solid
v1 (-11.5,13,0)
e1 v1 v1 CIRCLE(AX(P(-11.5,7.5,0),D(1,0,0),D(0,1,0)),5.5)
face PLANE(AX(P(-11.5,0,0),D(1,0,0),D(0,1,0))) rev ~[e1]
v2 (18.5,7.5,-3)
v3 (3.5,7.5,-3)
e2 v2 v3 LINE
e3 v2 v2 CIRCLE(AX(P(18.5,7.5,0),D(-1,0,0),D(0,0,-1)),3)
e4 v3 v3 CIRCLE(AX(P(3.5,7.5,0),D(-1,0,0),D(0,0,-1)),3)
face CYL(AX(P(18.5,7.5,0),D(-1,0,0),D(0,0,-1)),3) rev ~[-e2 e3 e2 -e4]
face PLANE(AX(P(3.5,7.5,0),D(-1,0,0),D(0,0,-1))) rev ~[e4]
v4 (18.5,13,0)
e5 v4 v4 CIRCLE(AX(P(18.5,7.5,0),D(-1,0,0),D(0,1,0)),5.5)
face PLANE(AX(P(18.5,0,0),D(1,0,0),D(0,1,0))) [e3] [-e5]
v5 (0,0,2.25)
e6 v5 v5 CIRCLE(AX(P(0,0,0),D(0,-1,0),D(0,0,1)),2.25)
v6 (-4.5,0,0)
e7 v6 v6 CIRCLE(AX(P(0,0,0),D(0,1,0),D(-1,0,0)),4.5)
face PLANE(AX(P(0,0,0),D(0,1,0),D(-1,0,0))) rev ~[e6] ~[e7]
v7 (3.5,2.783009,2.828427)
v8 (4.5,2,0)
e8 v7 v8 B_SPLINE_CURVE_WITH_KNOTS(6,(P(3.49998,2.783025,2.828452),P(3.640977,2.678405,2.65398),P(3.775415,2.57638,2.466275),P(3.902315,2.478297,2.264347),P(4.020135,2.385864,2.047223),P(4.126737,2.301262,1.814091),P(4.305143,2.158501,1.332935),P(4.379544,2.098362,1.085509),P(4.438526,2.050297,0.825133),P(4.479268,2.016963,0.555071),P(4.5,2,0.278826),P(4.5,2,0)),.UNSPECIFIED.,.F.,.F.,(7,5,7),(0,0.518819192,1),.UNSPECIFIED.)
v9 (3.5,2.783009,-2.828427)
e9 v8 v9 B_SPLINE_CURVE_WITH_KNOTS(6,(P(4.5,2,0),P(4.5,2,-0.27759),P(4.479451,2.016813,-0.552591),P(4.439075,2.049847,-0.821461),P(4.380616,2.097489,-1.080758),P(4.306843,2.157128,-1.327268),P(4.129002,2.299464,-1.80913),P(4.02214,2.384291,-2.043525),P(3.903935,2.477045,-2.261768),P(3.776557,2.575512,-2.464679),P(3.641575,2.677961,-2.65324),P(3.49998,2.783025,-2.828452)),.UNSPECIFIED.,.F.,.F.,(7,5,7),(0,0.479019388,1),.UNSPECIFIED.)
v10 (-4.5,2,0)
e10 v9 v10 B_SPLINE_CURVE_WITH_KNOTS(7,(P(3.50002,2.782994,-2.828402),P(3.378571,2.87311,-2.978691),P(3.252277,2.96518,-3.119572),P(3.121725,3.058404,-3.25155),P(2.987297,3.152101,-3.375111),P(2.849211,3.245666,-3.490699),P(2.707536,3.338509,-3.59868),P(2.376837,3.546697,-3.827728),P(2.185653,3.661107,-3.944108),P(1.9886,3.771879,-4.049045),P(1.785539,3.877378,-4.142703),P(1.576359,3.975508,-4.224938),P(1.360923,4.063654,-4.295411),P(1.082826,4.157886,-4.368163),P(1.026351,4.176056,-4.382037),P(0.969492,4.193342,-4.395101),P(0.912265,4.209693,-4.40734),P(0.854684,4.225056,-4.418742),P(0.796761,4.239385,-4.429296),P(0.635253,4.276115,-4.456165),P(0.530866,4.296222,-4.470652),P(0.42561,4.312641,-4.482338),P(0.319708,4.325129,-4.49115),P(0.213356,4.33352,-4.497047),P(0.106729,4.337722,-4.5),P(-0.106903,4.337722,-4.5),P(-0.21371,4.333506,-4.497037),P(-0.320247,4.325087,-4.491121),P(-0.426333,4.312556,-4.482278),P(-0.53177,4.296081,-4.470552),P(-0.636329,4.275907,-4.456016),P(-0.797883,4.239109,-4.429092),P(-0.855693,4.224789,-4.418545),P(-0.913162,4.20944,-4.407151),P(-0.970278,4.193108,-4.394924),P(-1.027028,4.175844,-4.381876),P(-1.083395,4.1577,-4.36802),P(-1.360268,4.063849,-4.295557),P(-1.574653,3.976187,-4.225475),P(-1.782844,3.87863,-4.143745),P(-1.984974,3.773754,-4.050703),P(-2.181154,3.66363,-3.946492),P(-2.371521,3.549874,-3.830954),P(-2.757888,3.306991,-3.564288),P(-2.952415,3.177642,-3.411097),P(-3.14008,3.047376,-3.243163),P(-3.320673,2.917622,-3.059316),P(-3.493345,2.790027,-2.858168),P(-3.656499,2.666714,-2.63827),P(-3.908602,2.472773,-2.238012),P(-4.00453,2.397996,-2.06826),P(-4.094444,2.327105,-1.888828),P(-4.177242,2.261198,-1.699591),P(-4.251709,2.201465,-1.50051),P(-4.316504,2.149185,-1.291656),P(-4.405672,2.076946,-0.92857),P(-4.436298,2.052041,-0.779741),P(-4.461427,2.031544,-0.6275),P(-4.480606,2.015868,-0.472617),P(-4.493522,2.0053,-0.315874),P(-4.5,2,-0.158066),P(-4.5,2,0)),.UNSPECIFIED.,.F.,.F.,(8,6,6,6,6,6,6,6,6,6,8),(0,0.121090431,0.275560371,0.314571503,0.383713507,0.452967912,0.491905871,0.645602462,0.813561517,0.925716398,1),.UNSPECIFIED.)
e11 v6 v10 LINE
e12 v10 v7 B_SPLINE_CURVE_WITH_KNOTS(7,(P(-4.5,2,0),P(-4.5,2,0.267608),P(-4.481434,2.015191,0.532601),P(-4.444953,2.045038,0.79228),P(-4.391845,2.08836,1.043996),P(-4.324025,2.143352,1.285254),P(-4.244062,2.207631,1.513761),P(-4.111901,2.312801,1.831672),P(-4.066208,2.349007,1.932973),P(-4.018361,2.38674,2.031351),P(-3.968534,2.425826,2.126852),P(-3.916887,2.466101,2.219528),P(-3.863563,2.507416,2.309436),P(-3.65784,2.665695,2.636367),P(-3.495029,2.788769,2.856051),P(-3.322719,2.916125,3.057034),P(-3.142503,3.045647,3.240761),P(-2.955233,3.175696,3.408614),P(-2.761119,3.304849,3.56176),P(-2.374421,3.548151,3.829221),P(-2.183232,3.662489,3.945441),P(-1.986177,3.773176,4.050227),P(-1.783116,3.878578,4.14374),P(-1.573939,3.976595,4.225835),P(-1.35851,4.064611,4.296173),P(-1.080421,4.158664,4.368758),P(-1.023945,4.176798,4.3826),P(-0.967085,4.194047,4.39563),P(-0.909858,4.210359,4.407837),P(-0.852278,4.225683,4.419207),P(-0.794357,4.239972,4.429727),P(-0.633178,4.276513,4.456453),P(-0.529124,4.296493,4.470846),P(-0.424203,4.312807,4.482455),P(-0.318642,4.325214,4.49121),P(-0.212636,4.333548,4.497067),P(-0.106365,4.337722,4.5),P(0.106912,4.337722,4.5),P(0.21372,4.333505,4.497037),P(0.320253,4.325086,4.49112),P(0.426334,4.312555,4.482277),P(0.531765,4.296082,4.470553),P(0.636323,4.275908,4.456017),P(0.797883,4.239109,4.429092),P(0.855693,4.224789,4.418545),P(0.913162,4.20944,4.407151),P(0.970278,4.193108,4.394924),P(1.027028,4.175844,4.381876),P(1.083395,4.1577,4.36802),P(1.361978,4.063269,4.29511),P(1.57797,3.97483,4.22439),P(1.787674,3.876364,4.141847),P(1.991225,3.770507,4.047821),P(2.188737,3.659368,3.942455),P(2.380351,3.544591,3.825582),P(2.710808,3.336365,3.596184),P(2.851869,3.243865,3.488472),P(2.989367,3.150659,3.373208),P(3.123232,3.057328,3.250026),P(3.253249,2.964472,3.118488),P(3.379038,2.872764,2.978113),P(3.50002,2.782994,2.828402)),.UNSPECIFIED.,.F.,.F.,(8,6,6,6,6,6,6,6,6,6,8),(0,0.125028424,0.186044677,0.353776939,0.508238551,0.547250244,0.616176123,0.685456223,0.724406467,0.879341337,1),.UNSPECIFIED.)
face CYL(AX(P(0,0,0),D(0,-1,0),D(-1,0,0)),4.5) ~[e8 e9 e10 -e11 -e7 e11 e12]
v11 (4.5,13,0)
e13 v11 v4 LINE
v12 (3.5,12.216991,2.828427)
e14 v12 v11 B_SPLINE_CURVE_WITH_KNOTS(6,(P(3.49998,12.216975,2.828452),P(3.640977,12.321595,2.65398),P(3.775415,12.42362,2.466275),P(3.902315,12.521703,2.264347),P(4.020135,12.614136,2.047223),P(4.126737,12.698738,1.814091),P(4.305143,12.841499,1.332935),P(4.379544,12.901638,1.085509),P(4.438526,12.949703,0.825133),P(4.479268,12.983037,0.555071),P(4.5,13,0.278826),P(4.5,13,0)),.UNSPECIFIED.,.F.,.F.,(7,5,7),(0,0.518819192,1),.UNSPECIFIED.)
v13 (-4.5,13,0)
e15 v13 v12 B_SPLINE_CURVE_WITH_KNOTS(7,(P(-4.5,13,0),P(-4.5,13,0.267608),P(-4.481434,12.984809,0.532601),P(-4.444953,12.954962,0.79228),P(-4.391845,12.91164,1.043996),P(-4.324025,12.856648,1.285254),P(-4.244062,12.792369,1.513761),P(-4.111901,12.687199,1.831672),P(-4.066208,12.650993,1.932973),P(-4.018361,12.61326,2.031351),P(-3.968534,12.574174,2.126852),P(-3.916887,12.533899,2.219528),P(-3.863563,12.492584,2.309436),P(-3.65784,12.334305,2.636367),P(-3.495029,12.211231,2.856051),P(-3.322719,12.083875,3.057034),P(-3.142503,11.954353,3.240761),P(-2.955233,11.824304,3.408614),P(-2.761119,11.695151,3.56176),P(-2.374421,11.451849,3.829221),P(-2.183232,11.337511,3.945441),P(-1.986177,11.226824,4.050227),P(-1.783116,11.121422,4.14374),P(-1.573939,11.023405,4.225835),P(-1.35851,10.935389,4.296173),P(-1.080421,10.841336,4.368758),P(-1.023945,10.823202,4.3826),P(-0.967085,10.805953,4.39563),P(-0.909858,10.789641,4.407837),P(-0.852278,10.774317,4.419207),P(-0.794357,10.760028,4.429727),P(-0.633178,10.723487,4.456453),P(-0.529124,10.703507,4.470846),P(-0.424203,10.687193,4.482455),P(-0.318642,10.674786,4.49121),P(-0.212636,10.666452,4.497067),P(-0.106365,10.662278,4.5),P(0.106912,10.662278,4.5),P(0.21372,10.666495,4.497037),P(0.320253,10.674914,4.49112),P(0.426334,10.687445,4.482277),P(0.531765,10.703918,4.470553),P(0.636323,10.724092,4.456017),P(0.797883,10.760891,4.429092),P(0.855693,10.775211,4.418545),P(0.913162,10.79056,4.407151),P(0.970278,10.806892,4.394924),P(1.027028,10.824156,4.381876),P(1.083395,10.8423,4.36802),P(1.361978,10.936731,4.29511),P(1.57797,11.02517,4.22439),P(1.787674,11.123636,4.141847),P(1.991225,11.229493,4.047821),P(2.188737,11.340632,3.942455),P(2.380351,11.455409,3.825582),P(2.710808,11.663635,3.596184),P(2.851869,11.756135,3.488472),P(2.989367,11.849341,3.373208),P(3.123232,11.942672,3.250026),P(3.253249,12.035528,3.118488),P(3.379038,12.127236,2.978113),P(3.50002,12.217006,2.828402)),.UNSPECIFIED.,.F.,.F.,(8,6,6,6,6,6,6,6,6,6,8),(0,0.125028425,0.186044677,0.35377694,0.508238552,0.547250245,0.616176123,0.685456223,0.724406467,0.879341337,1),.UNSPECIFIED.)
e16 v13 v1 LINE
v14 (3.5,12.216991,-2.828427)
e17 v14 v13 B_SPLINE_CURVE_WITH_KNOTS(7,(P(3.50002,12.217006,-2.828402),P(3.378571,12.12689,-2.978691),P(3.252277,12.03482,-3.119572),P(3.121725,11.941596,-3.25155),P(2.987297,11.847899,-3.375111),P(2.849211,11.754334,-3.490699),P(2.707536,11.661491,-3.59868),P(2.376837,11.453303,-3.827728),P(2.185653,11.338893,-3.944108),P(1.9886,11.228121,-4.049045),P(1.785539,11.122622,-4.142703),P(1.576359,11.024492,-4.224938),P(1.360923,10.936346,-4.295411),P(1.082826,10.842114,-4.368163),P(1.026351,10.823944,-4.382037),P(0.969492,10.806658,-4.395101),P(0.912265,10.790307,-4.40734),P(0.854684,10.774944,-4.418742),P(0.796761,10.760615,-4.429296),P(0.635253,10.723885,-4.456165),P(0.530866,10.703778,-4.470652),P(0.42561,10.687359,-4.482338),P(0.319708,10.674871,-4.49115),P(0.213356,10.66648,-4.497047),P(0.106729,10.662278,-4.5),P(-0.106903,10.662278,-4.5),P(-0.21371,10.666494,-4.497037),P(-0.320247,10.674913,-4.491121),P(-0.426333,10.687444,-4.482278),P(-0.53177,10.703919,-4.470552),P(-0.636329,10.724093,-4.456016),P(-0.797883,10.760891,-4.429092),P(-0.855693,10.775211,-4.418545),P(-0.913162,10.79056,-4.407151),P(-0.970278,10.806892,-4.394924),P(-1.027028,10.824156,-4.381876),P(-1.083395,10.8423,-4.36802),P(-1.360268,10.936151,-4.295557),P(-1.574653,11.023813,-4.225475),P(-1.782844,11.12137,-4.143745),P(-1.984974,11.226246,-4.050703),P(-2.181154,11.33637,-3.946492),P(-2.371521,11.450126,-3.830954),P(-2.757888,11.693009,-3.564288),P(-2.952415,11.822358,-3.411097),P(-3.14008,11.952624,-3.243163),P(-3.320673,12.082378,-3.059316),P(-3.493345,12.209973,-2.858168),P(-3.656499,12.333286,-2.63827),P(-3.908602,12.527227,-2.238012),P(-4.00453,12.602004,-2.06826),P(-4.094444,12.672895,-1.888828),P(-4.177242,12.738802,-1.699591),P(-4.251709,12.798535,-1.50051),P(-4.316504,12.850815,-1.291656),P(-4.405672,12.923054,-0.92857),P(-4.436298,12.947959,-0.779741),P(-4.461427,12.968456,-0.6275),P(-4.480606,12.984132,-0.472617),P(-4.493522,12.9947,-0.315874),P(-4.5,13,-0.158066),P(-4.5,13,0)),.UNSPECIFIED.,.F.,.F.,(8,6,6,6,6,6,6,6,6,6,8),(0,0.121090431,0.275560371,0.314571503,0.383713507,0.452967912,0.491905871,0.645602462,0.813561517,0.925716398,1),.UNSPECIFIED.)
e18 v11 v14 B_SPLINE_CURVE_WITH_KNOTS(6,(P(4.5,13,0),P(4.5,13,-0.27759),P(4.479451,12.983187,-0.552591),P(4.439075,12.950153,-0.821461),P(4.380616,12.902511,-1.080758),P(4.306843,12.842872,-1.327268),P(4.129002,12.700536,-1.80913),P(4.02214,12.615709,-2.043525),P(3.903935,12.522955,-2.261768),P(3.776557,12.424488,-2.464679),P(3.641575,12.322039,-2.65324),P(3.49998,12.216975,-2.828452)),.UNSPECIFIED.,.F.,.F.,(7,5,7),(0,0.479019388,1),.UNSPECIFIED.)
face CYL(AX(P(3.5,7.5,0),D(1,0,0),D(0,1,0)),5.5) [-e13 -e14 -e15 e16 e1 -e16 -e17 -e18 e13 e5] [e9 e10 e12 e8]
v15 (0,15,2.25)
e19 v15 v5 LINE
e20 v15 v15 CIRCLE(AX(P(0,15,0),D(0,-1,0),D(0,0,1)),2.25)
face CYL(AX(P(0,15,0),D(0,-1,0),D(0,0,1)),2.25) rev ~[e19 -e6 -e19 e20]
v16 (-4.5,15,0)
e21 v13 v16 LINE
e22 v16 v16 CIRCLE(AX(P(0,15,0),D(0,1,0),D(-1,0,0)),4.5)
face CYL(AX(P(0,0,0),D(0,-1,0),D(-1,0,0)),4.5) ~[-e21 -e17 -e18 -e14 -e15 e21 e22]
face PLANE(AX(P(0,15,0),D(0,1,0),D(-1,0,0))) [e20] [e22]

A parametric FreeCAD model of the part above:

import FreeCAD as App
import Part
import Sketcher
from FreeCAD import Vector
Q = App.Units.Quantity

doc = App.newDocument("Part")
body = doc.addObject("PartDesign::Body", "Body")

# Sketch on XZ plane
sketch1 = body.newObject("Sketcher::SketchObject", "Sketch")
sketch1.AttachmentSupport = (doc.getObject("XZ_Plane"), [""])
sketch1.MapMode = "FlatFace"
sketch1.addGeometry(Part.Circle(Vector(0, 0, 0), Vector(0, 0, 1), 4.5), False)
sketch1.addConstraint([
    Sketcher.Constraint("Coincident", 0, 3, -1, 1),
    Sketcher.Constraint("Diameter", 0, Q("9 mm")),
])
pad1 = body.newObject("PartDesign::Pad", "Pad")
pad1.Profile = sketch1
pad1.Length = 15
pad1.Reversed = True

# Sketch on YZ plane
sketch2 = body.newObject("Sketcher::SketchObject", "Sketch001")
sketch2.AttachmentSupport = (doc.getObject("YZ_Plane"), [""])
sketch2.MapMode = "FlatFace"
sketch2.AttachmentOffset = App.Placement(Vector(0, 0, 3.5), App.Rotation())
sketch2.addGeometry(Part.Circle(Vector(8, 0, 0), Vector(0, 0, 1), 6), False)
sketch2.addConstraint([
    Sketcher.Constraint("PointOnObject", 0, 3, -1),
    Sketcher.Constraint("Diameter", 0, Q("11 mm")),
    Sketcher.Constraint("DistanceX", -1, 1, 0, 3, Q("7.5 mm")),
])
pad2 = body.newObject("PartDesign::Pad", "Pad001")
pad2.Profile = sketch2
pad2.Length = 30
pad2.Midplane = True

# Sketch on XZ plane
sketch3 = body.newObject("Sketcher::SketchObject", "Sketch002")
sketch3.AttachmentSupport = (doc.getObject("XZ_Plane"), [""])
sketch3.MapMode = "FlatFace"
sketch3.AttachmentOffset = App.Placement(Vector(0, 0, -15), App.Rotation())
sketch3.addGeometry(Part.Circle(Vector(0, 0, 0), Vector(0, 0, 1), 2.2), False)
sketch3.addConstraint([
    Sketcher.Constraint("Coincident", 0, 3, -1, 1),
    Sketcher.Constraint("Diameter", 0, Q("4.5 mm")),
])
doc.recompute()
hole = body.newObject("PartDesign::Hole", "Hole")
hole.Profile = sketch3
hole.ThreadType = "None"
hole.Diameter = 4.5
hole.DepthType = "Dimension"
hole.Depth = 20
hole.DrillPoint = "Flat"
hole.Reversed = True

# Sketch on YZ plane
sketch4 = body.newObject("Sketcher::SketchObject", "Sketch003")
sketch4.AttachmentSupport = (doc.getObject("YZ_Plane"), [""])
sketch4.MapMode = "FlatFace"
sketch4.AttachmentOffset = App.Placement(Vector(0, 0, 18.5), App.Rotation())
sketch4.addGeometry(Part.Circle(Vector(7.5, 0, 0), Vector(0, 0, 1), 3), False)
sketch4.addConstraint([
    Sketcher.Constraint("PointOnObject", 0, 3, -1),
    Sketcher.Constraint("Diameter", 0, Q("6 mm")),
    Sketcher.Constraint("DistanceX", -1, 1, 0, 3, Q("7.5 mm")),
])
doc.recompute()
hole2 = body.newObject("PartDesign::Hole", "Hole001")
hole2.Profile = sketch4
hole2.ThreadType = "None"
hole2.Diameter = 6
hole2.DepthType = "Dimension"
hole2.Depth = 15
hole2.DrillPoint = "Flat"

doc.recompute()
